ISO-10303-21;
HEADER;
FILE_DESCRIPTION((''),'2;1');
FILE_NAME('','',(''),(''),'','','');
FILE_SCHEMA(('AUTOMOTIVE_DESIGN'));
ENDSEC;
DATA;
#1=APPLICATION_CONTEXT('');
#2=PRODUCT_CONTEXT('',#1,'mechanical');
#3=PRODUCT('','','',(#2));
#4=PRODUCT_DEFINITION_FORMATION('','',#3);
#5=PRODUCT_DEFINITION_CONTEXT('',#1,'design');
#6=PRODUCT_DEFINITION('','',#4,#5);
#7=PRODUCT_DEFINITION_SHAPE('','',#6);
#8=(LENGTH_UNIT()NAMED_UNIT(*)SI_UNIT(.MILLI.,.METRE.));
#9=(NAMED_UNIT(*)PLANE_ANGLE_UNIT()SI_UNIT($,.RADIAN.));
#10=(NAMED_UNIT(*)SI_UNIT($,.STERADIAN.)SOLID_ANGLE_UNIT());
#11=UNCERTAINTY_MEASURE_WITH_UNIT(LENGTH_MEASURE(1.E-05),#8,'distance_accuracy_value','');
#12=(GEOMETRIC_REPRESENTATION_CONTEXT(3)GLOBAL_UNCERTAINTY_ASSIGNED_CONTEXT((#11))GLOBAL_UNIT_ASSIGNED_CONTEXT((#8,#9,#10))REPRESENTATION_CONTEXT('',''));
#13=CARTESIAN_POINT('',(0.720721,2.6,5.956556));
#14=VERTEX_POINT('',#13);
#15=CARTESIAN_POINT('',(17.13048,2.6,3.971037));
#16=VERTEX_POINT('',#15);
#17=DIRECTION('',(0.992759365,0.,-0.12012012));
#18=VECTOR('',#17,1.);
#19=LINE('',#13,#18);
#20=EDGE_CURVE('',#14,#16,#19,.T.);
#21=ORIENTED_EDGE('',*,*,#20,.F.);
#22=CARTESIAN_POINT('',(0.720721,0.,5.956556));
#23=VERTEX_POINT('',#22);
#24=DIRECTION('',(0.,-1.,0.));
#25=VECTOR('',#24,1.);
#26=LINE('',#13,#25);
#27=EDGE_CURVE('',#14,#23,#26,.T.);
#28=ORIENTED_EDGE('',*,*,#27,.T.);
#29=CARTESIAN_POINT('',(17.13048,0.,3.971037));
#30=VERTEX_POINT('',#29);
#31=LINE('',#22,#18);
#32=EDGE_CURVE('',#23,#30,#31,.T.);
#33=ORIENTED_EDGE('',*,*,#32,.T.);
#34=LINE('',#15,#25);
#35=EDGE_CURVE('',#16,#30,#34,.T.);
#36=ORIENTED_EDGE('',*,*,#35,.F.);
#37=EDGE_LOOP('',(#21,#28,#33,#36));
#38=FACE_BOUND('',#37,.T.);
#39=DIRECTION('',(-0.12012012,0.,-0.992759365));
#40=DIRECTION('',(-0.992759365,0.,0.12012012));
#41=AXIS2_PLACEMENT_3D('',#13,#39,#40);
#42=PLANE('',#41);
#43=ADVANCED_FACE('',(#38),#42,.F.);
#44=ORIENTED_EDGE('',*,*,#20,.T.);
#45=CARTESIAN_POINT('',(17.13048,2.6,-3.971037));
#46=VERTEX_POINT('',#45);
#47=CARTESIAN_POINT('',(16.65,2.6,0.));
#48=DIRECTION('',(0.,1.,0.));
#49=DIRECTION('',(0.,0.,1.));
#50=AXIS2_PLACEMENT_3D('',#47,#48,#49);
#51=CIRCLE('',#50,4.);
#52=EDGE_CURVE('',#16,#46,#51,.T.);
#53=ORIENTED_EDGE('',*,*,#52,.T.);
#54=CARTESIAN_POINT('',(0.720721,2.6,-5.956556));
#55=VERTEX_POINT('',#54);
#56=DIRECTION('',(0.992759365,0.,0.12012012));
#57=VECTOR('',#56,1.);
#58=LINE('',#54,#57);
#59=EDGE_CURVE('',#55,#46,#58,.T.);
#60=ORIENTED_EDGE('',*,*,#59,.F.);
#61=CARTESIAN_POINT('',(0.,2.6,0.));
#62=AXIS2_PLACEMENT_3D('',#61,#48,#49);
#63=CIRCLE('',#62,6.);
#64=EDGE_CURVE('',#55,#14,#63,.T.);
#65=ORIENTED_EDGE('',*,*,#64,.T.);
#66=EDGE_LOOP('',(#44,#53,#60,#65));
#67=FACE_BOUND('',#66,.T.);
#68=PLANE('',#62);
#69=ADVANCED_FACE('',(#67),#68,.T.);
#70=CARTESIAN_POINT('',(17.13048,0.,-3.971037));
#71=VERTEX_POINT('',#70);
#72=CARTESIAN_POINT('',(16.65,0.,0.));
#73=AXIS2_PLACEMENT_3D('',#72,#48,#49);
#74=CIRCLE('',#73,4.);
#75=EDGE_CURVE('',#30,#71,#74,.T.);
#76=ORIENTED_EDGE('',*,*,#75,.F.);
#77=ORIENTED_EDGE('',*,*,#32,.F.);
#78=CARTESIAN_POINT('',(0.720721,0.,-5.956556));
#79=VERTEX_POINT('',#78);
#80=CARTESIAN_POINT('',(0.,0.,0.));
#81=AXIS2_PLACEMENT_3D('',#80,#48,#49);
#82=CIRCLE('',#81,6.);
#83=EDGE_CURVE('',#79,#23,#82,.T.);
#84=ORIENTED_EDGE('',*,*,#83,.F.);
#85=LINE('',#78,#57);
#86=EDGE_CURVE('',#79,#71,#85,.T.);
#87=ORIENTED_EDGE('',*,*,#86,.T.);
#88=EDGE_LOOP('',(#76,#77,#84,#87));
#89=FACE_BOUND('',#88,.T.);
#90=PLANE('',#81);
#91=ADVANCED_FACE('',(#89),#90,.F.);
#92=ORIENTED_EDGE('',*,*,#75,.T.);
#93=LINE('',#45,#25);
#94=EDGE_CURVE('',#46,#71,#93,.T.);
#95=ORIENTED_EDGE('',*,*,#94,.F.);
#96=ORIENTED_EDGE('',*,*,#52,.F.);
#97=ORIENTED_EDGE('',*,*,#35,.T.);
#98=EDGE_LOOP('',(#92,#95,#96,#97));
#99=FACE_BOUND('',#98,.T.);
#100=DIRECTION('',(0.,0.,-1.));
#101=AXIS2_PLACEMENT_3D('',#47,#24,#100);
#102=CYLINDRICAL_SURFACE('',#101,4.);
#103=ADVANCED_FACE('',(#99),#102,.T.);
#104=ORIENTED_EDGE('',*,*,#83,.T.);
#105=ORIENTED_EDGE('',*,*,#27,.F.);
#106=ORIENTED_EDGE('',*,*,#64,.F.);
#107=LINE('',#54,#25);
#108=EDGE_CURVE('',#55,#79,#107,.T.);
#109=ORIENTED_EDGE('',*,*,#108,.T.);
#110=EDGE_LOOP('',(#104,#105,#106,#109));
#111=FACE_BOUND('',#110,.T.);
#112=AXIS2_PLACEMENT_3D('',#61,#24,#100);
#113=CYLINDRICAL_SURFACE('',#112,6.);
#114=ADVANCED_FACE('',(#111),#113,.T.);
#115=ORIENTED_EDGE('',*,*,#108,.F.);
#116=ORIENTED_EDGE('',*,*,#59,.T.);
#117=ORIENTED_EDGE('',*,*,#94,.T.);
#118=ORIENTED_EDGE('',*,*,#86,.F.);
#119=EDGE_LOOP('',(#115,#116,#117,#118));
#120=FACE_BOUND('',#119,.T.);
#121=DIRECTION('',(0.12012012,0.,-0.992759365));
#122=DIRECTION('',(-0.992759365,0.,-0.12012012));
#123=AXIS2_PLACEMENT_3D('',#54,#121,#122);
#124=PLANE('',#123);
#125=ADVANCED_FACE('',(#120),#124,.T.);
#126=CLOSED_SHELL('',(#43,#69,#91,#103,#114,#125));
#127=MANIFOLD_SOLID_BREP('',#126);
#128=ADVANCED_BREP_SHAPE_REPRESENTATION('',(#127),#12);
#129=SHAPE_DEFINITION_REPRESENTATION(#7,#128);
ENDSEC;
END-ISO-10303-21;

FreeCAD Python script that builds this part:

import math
import FreeCAD as App
import Part
import Sketcher

doc = App.newDocument("Part")
body = doc.addObject("PartDesign::Body", "Body")

# Sketch on XZ plane
sketch1 = body.newObject("Sketcher::SketchObject", "Sketch")
sketch1.AttachmentSupport = (doc.getObject("XZ_Plane"), [""])
sketch1.MapMode = "FlatFace"
sketch1.addGeometry(Part.ArcOfCircle(Part.Circle(App.Vector(0, 0, 0), App.Vector(0, 0, 1), 6), math.radians(83), math.radians(277)), False)
sketch1.addGeometry(Part.LineSegment(App.Vector(0.7, 6, 0), App.Vector(17.1, 4, 0)), False)
sketch1.addGeometry(Part.ArcOfCircle(Part.Circle(App.Vector(16.6, 0, 0), App.Vector(0, 0, 1), 4), math.radians(-83), math.radians(83)), False)
sketch1.addGeometry(Part.LineSegment(App.Vector(17.1, -4, 0), App.Vector(0.7, -6, 0)), False)
sketch1.addConstraint(Sketcher.Constraint("Tangent", 0, 1, 1, 1))
sketch1.addConstraint(Sketcher.Constraint("Tangent", 1, 2, 2, 2))
sketch1.addConstraint(Sketcher.Constraint("Tangent", 2, 1, 3, 1))
sketch1.addConstraint(Sketcher.Constraint("Tangent", 3, 2, 0, 2))
sketch1.addConstraint(Sketcher.Constraint("Coincident", 0, 3, -1, 1))
sketch1.addConstraint(Sketcher.Constraint("PointOnObject", 2, 3, -1))
sketch1.addConstraint(Sketcher.Constraint("Radius", 0, 6.0))
sketch1.addConstraint(Sketcher.Constraint("Radius", 2, 4.0))
sketch1.addConstraint(Sketcher.Constraint("DistanceX", -1, 1, 2, 3, 16.65))
pad1 = body.newObject("PartDesign::Pad", "Pad")
pad1.Profile = sketch1
pad1.Length = 2.6
pad1.Reversed = True

doc.recompute()
